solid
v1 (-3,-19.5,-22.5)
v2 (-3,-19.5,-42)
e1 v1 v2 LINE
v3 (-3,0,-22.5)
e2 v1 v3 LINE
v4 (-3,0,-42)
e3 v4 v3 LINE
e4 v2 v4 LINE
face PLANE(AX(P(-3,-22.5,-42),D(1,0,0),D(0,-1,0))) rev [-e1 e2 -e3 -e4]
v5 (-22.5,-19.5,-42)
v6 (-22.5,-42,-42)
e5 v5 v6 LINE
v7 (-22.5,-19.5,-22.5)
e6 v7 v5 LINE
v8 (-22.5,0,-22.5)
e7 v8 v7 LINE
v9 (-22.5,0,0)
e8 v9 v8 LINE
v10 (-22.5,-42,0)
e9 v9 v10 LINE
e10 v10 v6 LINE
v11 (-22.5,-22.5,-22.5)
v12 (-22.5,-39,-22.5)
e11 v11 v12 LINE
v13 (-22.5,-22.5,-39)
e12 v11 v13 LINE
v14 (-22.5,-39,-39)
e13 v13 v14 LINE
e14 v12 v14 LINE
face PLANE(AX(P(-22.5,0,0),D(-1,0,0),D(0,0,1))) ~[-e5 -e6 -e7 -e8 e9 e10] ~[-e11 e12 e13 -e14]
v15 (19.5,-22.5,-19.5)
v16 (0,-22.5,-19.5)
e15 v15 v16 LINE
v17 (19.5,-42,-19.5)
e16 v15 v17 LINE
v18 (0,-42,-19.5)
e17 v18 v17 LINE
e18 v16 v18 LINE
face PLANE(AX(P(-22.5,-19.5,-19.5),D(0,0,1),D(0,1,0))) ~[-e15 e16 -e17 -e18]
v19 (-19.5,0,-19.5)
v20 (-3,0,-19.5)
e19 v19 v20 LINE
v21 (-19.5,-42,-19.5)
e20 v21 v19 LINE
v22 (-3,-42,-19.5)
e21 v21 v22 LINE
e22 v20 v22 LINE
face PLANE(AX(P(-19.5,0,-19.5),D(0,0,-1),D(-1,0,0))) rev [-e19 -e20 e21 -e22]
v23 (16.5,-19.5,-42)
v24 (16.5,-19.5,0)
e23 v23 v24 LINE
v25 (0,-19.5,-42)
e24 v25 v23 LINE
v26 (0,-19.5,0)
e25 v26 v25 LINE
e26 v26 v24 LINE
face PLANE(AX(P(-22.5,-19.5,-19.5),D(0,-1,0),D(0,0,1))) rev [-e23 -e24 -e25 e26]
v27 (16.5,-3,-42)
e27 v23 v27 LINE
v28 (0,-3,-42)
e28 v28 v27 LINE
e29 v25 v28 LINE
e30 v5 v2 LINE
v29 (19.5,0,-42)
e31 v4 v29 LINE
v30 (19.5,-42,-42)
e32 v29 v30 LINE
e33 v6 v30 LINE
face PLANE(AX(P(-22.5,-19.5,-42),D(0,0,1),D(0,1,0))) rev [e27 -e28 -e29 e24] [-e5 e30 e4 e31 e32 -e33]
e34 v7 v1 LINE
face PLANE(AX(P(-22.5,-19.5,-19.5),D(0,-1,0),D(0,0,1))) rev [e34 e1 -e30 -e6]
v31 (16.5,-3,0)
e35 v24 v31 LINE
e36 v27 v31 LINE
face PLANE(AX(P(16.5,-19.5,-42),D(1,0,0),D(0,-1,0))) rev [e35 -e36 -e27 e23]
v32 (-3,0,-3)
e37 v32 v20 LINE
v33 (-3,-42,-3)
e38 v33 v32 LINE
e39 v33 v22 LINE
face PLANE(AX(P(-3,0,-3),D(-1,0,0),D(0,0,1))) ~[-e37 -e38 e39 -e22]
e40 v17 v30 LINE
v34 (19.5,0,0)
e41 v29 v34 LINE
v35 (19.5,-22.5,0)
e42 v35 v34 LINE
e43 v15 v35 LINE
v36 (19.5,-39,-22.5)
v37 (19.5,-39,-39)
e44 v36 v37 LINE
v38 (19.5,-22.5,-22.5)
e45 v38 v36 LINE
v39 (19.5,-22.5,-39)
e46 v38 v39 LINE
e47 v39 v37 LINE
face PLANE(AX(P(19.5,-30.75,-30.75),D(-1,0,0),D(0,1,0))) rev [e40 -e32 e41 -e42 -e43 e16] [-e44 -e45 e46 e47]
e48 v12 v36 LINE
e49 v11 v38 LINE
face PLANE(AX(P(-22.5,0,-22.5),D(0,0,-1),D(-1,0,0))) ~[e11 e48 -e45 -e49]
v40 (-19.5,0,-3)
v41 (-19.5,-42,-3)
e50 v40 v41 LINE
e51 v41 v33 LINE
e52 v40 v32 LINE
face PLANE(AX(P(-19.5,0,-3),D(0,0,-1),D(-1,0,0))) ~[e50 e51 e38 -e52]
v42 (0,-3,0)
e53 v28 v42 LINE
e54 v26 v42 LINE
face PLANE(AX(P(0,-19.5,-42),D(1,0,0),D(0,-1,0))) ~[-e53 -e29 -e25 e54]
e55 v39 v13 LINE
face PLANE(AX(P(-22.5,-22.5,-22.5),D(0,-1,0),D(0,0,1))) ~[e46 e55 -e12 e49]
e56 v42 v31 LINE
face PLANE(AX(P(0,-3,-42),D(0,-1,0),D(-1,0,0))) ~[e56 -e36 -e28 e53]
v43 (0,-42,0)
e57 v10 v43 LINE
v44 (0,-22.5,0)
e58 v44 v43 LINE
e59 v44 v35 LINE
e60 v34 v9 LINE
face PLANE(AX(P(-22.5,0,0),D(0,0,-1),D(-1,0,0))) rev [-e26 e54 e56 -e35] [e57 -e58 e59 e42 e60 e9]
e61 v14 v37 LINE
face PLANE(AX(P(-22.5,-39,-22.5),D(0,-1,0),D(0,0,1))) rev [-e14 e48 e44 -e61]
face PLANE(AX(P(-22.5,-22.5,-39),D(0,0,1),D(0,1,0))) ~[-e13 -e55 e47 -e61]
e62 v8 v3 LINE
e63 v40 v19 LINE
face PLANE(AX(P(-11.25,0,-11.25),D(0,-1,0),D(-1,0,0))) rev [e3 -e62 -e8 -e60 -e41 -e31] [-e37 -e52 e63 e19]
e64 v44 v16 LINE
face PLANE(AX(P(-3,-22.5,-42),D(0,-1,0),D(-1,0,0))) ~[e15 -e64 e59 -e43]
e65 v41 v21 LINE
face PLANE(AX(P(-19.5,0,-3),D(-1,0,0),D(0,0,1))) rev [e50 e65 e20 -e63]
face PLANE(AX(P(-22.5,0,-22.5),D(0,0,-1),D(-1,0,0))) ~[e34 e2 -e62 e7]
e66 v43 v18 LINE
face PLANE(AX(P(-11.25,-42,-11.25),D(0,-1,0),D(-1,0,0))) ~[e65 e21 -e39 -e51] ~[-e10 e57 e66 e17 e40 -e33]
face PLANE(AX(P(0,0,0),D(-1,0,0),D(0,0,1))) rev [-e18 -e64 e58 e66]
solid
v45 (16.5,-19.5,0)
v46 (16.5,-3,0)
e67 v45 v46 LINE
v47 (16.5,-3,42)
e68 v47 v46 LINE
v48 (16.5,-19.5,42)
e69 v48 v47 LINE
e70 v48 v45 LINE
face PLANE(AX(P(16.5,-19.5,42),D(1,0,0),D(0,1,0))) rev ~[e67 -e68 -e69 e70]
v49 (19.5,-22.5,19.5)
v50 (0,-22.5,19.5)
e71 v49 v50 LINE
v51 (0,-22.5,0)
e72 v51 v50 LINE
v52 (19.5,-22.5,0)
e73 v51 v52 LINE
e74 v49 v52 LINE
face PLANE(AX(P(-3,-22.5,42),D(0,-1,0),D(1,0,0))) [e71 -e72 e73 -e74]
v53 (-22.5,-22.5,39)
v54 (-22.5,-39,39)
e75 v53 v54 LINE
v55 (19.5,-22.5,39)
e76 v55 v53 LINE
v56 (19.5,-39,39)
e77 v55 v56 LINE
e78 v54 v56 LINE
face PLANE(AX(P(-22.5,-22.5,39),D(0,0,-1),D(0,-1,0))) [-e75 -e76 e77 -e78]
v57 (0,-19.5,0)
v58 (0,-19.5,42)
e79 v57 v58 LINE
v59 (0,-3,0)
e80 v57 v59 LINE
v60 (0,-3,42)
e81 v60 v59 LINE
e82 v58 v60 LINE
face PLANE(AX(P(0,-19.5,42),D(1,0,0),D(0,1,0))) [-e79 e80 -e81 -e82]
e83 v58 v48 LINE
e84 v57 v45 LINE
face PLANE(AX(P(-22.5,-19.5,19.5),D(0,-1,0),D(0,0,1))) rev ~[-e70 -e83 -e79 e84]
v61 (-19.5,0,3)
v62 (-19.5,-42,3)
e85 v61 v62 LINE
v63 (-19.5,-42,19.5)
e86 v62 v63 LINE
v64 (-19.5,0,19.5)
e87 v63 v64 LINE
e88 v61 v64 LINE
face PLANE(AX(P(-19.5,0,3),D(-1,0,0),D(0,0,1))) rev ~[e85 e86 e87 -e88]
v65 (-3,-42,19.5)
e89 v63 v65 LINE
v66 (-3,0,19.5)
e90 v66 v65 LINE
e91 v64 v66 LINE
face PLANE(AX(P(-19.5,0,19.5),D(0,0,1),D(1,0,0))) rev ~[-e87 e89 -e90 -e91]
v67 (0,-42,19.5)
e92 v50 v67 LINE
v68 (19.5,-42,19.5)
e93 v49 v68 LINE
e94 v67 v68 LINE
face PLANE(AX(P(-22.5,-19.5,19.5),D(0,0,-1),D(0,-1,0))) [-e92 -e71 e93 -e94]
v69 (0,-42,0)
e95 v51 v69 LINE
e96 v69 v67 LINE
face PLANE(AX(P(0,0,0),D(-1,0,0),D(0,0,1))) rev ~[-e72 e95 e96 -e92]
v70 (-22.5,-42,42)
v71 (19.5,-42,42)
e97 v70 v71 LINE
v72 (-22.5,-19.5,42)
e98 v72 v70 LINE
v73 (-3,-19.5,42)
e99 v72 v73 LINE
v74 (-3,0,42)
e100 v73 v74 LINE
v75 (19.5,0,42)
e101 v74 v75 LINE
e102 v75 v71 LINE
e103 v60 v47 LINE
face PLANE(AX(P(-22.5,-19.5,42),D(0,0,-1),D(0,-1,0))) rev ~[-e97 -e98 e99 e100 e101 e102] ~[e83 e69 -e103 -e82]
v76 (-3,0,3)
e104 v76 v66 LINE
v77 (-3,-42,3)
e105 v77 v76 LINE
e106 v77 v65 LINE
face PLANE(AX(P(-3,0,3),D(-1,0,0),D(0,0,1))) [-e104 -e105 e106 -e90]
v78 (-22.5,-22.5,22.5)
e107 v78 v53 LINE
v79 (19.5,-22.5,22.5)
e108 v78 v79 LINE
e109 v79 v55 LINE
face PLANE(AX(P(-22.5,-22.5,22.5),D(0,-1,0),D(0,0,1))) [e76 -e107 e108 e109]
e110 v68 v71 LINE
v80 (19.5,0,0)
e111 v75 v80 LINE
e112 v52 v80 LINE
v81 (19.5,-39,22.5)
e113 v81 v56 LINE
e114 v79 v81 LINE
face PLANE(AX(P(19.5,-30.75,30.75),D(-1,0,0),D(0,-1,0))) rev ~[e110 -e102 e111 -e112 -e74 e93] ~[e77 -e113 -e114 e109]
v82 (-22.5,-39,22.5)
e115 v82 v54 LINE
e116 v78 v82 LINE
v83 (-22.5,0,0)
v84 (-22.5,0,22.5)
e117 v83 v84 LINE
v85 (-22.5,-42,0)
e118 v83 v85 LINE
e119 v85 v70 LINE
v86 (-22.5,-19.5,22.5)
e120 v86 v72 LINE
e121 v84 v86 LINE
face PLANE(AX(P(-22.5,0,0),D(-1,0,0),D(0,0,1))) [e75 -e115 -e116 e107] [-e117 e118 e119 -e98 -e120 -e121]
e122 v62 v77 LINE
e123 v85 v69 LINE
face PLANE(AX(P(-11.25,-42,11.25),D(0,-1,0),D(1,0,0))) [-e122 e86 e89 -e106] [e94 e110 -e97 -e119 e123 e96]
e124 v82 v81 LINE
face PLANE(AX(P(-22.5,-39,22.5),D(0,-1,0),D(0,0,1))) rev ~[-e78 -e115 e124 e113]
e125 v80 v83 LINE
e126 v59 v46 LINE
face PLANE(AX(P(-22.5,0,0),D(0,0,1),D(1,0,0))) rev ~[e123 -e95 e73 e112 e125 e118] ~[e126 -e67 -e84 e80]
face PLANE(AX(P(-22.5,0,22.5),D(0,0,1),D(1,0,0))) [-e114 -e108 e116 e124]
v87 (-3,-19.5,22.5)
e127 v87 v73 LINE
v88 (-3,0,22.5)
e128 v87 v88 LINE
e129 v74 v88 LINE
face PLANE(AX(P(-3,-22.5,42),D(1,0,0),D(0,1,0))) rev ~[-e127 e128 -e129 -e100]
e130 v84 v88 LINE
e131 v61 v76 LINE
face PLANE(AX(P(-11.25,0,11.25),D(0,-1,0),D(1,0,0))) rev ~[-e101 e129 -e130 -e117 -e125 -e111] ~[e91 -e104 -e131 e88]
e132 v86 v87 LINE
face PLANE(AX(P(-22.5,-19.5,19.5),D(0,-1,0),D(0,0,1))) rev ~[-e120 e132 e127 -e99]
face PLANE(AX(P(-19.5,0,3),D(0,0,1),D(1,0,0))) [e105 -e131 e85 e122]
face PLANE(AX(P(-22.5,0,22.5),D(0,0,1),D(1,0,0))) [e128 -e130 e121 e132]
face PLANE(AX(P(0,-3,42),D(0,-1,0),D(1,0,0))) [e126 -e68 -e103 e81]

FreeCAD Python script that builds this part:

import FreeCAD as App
import Part
import Sketcher

V = App.Vector
Q = App.Units.Quantity

doc = App.newDocument("Part")
body = doc.addObject("PartDesign::Body", "Body")

sketch1 = doc.addObject("Sketcher::SketchObject", "Sketch")
body.addObject(sketch1)
sketch1.AttachmentSupport = (doc.XZ_Plane, [""])
sketch1.MapMode = "FlatFace"
sketch1.addGeometry([
    Part.LineSegment(V(-22, 22, 0), V(-22, 0, 0)),
    Part.LineSegment(V(-22, 0, 0), V(0, 0, 0)),
    Part.LineSegment(V(0, 0, 0), V(0, 22, 0)),
    Part.LineSegment(V(0, 22, 0), V(-22, 22, 0)),
    Part.LineSegment(V(-3, 3, 0), V(-20, 3, 0)),
    Part.LineSegment(V(-20, 3, 0), V(-20, 20, 0)),
    Part.LineSegment(V(-20, 20, 0), V(-3, 20, 0)),
    Part.LineSegment(V(-3, 20, 0), V(-3, 3, 0)),
], False)
sketch1.addConstraint([
    Sketcher.Constraint("Coincident", 0, 2, 1, 1),
    Sketcher.Constraint("Coincident", 1, 2, 2, 1),
    Sketcher.Constraint("Coincident", 2, 2, 3, 1),
    Sketcher.Constraint("Coincident", 3, 2, 0, 1),
    Sketcher.Constraint("Coincident", 4, 2, 5, 1),
    Sketcher.Constraint("Coincident", 5, 2, 6, 1),
    Sketcher.Constraint("Coincident", 6, 2, 7, 1),
    Sketcher.Constraint("Coincident", 7, 2, 4, 1),
    Sketcher.Constraint("Vertical", 0),
    Sketcher.Constraint("Horizontal", 1),
    Sketcher.Constraint("Vertical", 2),
    Sketcher.Constraint("Horizontal", 3),
    Sketcher.Constraint("Horizontal", 4),
    Sketcher.Constraint("Vertical", 5),
    Sketcher.Constraint("Horizontal", 6),
    Sketcher.Constraint("Vertical", 7),
    Sketcher.Constraint("Coincident", 1, 2, -1, 1),
    Sketcher.Constraint("Equal", 3, 0),
    Sketcher.Constraint("Equal", 6, 5),
    Sketcher.Constraint("DistanceX", 1, 1, 1, 2, Q("22.5 mm")),
    Sketcher.Constraint("DistanceX", 4, 2, 4, 1, Q("16.5 mm")),
    Sketcher.Constraint("DistanceY", -1, 1, 4, 2, Q("3 mm")),
    Sketcher.Constraint("DistanceX", 6, 2, -1, 1, Q("3 mm")),
])
pad1 = doc.addObject("PartDesign::Pad", "Pad")
body.addObject(pad1)
pad1.Profile = sketch1
pad1.Length = 42

sketch2 = doc.addObject("Sketcher::SketchObject", "Sketch001")
body.addObject(sketch2)
sketch2.AttachmentSupport = (doc.YZ_Plane, [""])
sketch2.MapMode = "FlatFace"
sketch2.AttachmentOffset = App.Placement(V(0, 0, -22.5), App.Rotation())
sketch2.addGeometry([
    Part.LineSegment(V(-20, 42, 0), V(-20, 20, 0)),
    Part.LineSegment(V(-20, 20, 0), V(-42, 20, 0)),
    Part.LineSegment(V(-42, 20, 0), V(-42, 42, 0)),
    Part.LineSegment(V(-42, 42, 0), V(-20, 42, 0)),
    Part.LineSegment(V(-39, 22, 0), V(-22, 22, 0)),
    Part.LineSegment(V(-22, 22, 0), V(-22, 39, 0)),
    Part.LineSegment(V(-22, 39, 0), V(-39, 39, 0)),
    Part.LineSegment(V(-39, 39, 0), V(-39, 22, 0)),
], False)
sketch2.addConstraint([
    Sketcher.Constraint("Coincident", 0, 2, 1, 1),
    Sketcher.Constraint("Coincident", 1, 2, 2, 1),
    Sketcher.Constraint("Coincident", 2, 2, 3, 1),
    Sketcher.Constraint("Coincident", 3, 2, 0, 1),
    Sketcher.Constraint("Coincident", 4, 2, 5, 1),
    Sketcher.Constraint("Coincident", 5, 2, 6, 1),
    Sketcher.Constraint("Coincident", 6, 2, 7, 1),
    Sketcher.Constraint("Coincident", 7, 2, 4, 1),
    Sketcher.Constraint("Vertical", 0),
    Sketcher.Constraint("Horizontal", 1),
    Sketcher.Constraint("Vertical", 2),
    Sketcher.Constraint("Horizontal", 3),
    Sketcher.Constraint("Horizontal", 4),
    Sketcher.Constraint("Vertical", 5),
    Sketcher.Constraint("Horizontal", 6),
    Sketcher.Constraint("Vertical", 7),
    Sketcher.Constraint("Equal", 3, 0),
    Sketcher.Constraint("Equal", 6, 5),
    Sketcher.Constraint("DistanceX", 1, 2, 1, 1, Q("22.5 mm")),
    Sketcher.Constraint("DistanceX", 4, 1, 4, 2, Q("16.5 mm")),
    Sketcher.Constraint("DistanceX", 1, 2, -1, 1, Q("42 mm")),
    Sketcher.Constraint("DistanceY", -1, 1, 2, 2, Q("42 mm")),
    Sketcher.Constraint("DistanceY", -1, 1, 5, 2, Q("39 mm")),
    Sketcher.Constraint("DistanceX", 6, 2, -1, 1, Q("39 mm")),
])
pad2 = doc.addObject("PartDesign::Pad", "Pad001")
body.addObject(pad2)
pad2.Profile = sketch2
pad2.Length = 42

sketch3 = doc.addObject("Sketcher::SketchObject", "Sketch002")
body.addObject(sketch3)
sketch3.AttachmentSupport = (doc.XY_Plane, [""])
sketch3.MapMode = "FlatFace"
sketch3.AttachmentOffset = App.Placement(V(0, 0, 42), App.Rotation())
sketch3.addGeometry([
    Part.LineSegment(V(-3, 0, 0), V(-3, -22, 0)),
    Part.LineSegment(V(-3, -22, 0), V(20, -22, 0)),
    Part.LineSegment(V(20, -22, 0), V(20, 0, 0)),
    Part.LineSegment(V(20, 0, 0), V(-3, 0, 0)),
    Part.LineSegment(V(16, -20, 0), V(0, -20, 0)),
    Part.LineSegment(V(0, -20, 0), V(0, -3, 0)),
    Part.LineSegment(V(0, -3, 0), V(16, -3, 0)),
    Part.LineSegment(V(16, -3, 0), V(16, -20, 0)),
], False)
sketch3.addConstraint([
    Sketcher.Constraint("Coincident", 0, 2, 1, 1),
    Sketcher.Constraint("Coincident", 1, 2, 2, 1),
    Sketcher.Constraint("Coincident", 2, 2, 3, 1),
    Sketcher.Constraint("Coincident", 3, 2, 0, 1),
    Sketcher.Constraint("Coincident", 4, 2, 5, 1),
    Sketcher.Constraint("Coincident", 5, 2, 6, 1),
    Sketcher.Constraint("Coincident", 6, 2, 7, 1),
    Sketcher.Constraint("Coincident", 7, 2, 4, 1),
    Sketcher.Constraint("Vertical", 0),
    Sketcher.Constraint("Horizontal", 1),
    Sketcher.Constraint("Vertical", 2),
    Sketcher.Constraint("Horizontal", 3),
    Sketcher.Constraint("Horizontal", 4),
    Sketcher.Constraint("Vertical", 5),
    Sketcher.Constraint("Horizontal", 6),
    Sketcher.Constraint("Vertical", 7),
    Sketcher.Constraint("PointOnObject", 2, 2, -1),
    Sketcher.Constraint("PointOnObject", 4, 2, -2),
    Sketcher.Constraint("Equal", 3, 0),
    Sketcher.Constraint("Equal", 6, 5),
    Sketcher.Constraint("DistanceX", 1, 1, 1, 2, Q("22.5 mm")),
    Sketcher.Constraint("DistanceX", 4, 2, 4, 1, Q("16.5 mm")),
    Sketcher.Constraint("DistanceX", 0, 2, -1, 1, Q("3 mm")),
    Sketcher.Constraint("DistanceY", 5, 2, -1, 1, Q("3 mm")),
])
pad3 = doc.addObject("PartDesign::Pad", "Pad002")
body.addObject(pad3)
pad3.Profile = sketch3
pad3.Length = 42
pad3.Reversed = True
body2 = doc.addObject("PartDesign::Body", "Body001")
doc.recompute()

mirroring = doc.addObject("Part::Mirroring", "Mirroring")
mirroring.Source = body
mirroring.Base = V(0, 0, 0)
mirroring.Normal = V(0, 0, 1)
body2.BaseFeature = mirroring
doc.recompute()
mirroring.Visibility = False

doc.recompute()
